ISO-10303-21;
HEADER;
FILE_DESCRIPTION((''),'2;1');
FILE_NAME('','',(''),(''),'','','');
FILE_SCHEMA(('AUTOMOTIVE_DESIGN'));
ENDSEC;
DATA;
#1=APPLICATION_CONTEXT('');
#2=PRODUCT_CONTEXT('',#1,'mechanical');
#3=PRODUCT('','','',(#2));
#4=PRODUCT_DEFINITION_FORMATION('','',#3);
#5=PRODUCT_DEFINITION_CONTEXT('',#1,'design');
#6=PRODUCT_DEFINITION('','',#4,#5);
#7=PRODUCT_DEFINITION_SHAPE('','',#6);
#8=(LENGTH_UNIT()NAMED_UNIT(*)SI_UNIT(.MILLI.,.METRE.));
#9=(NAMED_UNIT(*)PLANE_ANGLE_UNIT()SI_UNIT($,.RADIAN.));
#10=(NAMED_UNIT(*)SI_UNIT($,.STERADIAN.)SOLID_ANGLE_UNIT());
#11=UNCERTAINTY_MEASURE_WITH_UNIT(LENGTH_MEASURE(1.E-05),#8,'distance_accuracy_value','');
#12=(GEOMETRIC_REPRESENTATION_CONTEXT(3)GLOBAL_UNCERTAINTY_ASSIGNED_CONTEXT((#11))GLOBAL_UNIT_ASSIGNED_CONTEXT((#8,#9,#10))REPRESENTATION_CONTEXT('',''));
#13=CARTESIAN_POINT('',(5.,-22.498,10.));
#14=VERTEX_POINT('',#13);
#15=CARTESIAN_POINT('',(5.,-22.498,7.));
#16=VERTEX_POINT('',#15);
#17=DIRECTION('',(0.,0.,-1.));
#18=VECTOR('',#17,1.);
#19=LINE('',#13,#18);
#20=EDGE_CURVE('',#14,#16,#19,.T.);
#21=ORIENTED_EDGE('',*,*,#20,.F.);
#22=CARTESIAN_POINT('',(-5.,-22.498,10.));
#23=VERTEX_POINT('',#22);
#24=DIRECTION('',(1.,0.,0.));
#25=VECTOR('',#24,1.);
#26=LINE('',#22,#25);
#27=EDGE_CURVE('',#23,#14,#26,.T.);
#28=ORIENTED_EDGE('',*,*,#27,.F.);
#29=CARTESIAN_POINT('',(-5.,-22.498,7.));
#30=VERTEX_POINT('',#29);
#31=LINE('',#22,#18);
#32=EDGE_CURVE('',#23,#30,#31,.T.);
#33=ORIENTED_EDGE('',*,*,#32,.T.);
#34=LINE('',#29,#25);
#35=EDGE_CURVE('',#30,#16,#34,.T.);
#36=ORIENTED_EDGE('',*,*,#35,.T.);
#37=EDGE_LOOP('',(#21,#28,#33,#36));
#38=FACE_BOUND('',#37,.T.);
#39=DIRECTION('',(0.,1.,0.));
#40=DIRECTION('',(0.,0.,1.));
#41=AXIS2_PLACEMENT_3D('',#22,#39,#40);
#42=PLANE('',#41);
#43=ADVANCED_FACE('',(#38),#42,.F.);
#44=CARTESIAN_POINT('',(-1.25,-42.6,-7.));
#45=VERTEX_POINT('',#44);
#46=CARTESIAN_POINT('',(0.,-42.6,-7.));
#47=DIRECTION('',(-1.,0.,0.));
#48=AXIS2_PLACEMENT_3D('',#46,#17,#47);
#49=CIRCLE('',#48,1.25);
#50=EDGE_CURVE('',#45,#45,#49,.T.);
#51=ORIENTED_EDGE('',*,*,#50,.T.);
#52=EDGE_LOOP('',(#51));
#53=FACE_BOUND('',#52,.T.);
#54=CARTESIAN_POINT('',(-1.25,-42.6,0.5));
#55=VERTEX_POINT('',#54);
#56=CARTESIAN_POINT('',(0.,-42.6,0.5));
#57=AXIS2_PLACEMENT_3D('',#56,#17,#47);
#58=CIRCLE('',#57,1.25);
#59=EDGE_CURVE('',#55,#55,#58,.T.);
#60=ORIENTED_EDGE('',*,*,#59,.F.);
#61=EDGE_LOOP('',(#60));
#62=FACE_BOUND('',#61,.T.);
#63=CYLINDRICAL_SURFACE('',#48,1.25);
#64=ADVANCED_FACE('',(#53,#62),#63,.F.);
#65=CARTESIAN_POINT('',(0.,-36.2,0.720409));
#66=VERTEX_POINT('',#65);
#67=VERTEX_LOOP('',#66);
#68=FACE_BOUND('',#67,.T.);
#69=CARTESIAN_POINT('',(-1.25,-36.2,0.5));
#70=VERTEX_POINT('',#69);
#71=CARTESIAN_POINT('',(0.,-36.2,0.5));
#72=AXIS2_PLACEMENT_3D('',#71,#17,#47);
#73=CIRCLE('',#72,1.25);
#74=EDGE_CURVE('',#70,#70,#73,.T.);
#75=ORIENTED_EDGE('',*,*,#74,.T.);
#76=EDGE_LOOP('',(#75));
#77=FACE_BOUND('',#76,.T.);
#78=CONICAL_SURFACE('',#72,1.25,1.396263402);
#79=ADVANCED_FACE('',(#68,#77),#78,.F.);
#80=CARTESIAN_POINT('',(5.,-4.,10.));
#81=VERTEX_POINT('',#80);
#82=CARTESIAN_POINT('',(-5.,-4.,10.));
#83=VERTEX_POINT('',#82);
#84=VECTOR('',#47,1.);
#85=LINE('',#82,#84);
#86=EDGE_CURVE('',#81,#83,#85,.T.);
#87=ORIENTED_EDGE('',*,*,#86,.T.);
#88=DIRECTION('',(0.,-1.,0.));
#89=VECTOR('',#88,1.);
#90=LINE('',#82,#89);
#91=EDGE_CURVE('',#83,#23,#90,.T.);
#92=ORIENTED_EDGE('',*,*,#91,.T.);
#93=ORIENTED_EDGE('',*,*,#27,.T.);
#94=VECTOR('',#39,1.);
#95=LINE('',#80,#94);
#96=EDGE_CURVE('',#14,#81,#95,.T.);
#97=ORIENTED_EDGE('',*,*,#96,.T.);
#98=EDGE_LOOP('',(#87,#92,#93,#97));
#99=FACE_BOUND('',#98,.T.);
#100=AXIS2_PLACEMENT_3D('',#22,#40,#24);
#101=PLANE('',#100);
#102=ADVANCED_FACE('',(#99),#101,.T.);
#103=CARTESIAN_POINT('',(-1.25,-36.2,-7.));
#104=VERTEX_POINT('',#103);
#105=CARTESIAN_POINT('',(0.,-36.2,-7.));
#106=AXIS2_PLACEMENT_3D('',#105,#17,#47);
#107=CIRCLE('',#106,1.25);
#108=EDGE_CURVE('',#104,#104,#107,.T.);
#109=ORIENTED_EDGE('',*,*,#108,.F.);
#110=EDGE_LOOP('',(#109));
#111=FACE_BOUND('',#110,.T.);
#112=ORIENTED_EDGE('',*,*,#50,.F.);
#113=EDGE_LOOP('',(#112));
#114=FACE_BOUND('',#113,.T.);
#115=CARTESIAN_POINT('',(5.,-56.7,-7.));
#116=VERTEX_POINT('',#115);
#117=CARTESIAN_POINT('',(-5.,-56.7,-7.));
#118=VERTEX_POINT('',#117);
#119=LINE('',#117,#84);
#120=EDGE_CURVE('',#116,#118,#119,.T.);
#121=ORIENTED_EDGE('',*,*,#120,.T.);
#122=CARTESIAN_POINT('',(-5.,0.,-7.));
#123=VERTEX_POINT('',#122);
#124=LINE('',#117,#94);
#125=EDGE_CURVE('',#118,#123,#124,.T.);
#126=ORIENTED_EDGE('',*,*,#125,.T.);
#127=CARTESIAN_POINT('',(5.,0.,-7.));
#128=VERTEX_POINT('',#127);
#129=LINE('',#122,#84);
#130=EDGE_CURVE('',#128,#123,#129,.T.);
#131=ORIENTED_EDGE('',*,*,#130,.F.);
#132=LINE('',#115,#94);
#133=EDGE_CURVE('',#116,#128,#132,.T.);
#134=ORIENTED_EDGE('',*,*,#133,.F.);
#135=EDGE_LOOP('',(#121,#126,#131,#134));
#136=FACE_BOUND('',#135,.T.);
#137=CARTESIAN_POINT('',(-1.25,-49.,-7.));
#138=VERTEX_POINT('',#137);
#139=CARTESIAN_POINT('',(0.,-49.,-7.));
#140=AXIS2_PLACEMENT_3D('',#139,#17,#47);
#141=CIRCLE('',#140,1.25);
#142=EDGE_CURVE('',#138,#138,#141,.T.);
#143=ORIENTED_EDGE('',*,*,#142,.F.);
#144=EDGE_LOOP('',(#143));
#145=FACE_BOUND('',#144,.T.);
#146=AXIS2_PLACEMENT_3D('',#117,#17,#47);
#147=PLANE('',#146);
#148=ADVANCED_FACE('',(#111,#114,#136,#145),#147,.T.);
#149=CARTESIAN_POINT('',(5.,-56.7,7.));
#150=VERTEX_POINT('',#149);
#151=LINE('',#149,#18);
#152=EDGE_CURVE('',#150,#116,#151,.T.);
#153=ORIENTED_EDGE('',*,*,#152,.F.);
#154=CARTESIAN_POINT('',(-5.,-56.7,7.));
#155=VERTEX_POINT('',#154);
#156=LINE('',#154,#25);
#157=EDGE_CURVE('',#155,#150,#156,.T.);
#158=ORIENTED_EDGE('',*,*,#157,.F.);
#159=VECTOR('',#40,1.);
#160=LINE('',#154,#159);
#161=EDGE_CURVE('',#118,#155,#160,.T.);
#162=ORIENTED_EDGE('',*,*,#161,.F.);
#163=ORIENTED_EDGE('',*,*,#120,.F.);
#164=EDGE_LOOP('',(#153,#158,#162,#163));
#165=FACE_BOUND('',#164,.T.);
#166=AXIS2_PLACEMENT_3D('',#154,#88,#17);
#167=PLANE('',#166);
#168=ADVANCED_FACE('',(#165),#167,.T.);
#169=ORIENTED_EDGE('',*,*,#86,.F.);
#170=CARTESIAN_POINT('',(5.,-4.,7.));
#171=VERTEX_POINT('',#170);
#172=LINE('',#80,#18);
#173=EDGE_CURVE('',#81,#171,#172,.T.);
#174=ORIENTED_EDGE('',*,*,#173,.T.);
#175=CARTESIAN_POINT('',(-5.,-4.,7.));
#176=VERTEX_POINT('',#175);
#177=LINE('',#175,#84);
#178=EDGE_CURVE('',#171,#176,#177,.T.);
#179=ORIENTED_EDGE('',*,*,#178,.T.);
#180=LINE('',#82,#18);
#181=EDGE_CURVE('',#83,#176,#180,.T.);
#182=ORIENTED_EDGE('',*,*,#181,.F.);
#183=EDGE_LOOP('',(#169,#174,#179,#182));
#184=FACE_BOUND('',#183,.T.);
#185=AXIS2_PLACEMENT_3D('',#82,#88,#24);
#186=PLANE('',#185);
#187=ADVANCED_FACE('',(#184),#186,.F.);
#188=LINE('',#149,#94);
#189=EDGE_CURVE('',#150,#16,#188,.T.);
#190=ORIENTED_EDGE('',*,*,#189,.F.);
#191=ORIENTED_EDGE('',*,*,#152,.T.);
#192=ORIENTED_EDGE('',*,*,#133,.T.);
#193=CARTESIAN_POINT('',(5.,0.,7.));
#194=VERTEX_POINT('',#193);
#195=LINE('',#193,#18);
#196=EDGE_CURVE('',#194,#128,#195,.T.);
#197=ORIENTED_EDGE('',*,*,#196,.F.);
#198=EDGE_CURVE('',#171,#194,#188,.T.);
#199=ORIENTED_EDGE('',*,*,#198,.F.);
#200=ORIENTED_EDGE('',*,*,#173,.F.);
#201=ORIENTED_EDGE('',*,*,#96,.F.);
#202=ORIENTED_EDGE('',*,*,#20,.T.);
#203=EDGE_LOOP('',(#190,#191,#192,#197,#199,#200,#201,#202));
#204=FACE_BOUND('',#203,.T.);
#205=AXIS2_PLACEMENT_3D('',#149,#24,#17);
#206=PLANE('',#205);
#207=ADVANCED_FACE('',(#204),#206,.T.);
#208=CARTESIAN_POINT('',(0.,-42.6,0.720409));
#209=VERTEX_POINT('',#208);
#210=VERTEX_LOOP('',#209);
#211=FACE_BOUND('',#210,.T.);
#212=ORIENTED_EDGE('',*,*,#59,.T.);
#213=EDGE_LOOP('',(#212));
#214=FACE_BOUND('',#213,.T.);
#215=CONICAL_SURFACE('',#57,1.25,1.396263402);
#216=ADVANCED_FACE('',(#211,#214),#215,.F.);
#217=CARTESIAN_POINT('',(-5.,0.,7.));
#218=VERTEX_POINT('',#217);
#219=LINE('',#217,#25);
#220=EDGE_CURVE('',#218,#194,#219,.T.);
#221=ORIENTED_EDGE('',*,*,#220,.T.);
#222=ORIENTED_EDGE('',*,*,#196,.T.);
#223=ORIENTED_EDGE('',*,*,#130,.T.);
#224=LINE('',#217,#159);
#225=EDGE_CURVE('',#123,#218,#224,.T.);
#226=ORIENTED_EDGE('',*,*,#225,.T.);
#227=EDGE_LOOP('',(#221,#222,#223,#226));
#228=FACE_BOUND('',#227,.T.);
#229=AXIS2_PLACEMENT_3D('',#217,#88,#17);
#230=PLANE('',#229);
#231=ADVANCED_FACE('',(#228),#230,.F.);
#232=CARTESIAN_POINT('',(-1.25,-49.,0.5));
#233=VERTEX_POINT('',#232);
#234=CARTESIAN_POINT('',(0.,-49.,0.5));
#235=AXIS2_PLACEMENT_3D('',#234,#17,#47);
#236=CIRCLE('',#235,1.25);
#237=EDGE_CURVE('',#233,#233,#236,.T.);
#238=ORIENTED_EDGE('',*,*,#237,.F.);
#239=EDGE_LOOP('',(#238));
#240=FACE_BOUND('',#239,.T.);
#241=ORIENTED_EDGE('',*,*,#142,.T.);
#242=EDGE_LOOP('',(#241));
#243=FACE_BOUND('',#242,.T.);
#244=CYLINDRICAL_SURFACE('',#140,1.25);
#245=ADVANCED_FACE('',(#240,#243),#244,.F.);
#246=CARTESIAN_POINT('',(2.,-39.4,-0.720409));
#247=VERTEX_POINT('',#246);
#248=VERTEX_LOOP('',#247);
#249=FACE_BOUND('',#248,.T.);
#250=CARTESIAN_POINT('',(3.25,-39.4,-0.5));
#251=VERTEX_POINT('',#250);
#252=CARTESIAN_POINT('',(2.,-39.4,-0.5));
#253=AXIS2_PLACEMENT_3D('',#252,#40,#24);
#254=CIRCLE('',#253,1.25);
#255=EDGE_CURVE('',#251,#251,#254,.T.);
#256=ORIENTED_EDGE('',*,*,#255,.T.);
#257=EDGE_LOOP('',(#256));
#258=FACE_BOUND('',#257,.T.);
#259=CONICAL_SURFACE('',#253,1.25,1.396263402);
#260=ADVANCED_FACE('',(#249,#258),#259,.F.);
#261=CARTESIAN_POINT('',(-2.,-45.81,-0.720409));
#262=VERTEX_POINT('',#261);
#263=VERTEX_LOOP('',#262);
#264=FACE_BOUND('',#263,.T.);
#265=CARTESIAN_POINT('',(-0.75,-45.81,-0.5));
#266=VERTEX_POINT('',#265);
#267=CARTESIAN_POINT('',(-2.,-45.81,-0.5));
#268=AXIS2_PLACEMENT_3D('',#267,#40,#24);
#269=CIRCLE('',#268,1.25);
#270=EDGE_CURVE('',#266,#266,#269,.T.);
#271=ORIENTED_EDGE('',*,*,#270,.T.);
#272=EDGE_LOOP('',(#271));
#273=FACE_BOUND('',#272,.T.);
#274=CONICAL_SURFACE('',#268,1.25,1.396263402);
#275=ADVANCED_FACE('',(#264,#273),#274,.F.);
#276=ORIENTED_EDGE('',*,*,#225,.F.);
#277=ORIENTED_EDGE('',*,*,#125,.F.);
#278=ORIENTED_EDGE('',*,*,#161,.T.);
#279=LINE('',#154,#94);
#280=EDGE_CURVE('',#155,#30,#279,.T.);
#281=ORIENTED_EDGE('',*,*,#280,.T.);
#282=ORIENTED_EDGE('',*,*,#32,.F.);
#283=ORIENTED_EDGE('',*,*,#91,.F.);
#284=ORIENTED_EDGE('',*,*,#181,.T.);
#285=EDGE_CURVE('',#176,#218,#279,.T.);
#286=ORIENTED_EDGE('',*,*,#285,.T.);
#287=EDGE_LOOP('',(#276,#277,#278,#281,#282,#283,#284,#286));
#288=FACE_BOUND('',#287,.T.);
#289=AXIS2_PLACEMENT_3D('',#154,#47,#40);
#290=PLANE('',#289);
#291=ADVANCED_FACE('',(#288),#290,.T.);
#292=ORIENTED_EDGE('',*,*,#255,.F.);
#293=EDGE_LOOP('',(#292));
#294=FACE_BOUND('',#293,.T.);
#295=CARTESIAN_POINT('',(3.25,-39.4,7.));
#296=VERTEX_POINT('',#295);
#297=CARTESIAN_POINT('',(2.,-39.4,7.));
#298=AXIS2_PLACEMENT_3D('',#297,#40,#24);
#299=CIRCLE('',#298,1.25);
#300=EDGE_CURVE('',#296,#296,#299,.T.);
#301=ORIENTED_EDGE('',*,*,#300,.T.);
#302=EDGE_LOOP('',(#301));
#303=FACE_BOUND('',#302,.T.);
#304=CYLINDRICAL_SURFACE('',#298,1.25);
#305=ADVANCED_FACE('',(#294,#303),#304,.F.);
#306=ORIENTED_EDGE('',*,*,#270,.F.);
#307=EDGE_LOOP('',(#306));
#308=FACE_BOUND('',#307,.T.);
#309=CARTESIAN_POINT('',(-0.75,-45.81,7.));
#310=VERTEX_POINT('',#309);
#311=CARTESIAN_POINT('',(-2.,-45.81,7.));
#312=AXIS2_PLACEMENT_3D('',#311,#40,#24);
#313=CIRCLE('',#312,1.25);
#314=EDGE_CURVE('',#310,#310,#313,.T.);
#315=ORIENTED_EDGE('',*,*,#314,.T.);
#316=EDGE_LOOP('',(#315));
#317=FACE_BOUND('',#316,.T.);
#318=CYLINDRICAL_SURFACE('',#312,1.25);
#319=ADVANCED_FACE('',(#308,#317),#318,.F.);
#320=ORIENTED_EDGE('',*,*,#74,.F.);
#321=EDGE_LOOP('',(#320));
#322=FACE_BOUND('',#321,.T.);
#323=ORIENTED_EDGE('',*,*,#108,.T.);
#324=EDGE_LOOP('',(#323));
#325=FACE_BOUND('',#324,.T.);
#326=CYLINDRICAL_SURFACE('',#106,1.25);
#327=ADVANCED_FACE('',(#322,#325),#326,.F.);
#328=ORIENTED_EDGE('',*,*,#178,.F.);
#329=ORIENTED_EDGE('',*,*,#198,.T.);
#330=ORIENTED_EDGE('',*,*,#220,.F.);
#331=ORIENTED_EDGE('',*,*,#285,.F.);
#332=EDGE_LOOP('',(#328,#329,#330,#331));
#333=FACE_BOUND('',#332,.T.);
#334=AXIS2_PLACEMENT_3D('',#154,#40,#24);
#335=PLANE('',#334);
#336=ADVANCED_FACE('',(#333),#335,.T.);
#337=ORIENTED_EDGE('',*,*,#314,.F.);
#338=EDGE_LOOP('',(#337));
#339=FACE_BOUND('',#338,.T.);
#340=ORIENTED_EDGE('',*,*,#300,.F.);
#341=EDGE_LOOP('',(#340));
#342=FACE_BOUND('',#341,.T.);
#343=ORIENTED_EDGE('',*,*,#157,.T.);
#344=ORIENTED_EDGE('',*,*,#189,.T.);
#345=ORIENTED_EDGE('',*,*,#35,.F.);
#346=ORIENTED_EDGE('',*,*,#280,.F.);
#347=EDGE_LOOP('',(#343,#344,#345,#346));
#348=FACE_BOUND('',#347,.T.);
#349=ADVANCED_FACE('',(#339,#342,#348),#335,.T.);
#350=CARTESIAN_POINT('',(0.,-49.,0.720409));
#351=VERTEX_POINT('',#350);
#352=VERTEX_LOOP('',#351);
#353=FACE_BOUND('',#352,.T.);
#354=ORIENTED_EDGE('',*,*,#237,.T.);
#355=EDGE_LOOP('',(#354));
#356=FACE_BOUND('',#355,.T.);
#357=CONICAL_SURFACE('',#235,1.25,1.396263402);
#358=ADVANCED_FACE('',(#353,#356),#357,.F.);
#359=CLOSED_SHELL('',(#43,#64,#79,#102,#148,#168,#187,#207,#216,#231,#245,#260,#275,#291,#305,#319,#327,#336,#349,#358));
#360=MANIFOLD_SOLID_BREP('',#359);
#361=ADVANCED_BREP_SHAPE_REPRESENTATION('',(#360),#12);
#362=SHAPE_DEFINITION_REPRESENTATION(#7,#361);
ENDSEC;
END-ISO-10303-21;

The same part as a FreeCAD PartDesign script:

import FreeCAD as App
import Part
import Sketcher
Q = App.Units.Quantity


def add_polygon(sketch, points):
    """Adds a closed chain of lines whose ends are joined by coincident constraints."""
    first, n = sketch.GeometryCount, len(points)
    for a, b in zip(points, points[1:] + points[:1]):
        sketch.addGeometry(Part.LineSegment(App.Vector(*a, 0), App.Vector(*b, 0)), False)
    for i in range(n):
        sketch.addConstraint(Sketcher.Constraint("Coincident", first + i, 2, first + (i + 1) % n, 1))

doc = App.newDocument("Part")
body = doc.addObject("PartDesign::Body", "Body")

sketch1 = body.newObject("Sketcher::SketchObject", "Sketch")
sketch1.AttachmentSupport = (doc.getObject("XZ_Plane"), [""])
sketch1.MapMode = "FlatFace"
add_polygon(sketch1, [(-5, -7), (-5, 7), (5, 7), (5, -7)])
sketch1.addConstraint(Sketcher.Constraint("Vertical", 0))
sketch1.addConstraint(Sketcher.Constraint("Horizontal", 1))
sketch1.addConstraint(Sketcher.Constraint("Vertical", 2))
sketch1.addConstraint(Sketcher.Constraint("Horizontal", 3))
sketch1.addConstraint(Sketcher.Constraint("Symmetric", 0, 2, 2, 2, -1, 1))
sketch1.addConstraint(Sketcher.Constraint("DistanceX", 1, 1, 1, 2, Q("10 mm")))
sketch1.addConstraint(Sketcher.Constraint("DistanceY", 0, 1, 0, 2, Q("14 mm")))
pad1 = body.newObject("PartDesign::Pad", "Pad")
pad1.Profile = sketch1
pad1.Length = 56.7

sketch2 = body.newObject("Sketcher::SketchObject", "Sketch001")
sketch2.AttachmentSupport = (doc.getObject("XY_Plane"), [""])
sketch2.MapMode = "FlatFace"
sketch2.AttachmentOffset = App.Placement(App.Vector(0, 0, 7), App.Rotation())
add_polygon(sketch2, [(-5, -4), (-5, -22), (5, -22), (5, -4)])
sketch2.addConstraint(Sketcher.Constraint("Vertical", 0))
sketch2.addConstraint(Sketcher.Constraint("Horizontal", 1))
sketch2.addConstraint(Sketcher.Constraint("Vertical", 2))
sketch2.addConstraint(Sketcher.Constraint("Horizontal", 3))
sketch2.addConstraint(Sketcher.Constraint("DistanceX", 1, 1, 1, 2, Q("10 mm")))
sketch2.addConstraint(Sketcher.Constraint("DistanceX", 0, 2, -1, 1, Q("5 mm")))
sketch2.addConstraint(Sketcher.Constraint("DistanceY", 2, 2, -1, 1, Q("4 mm")))
sketch2.addConstraint(Sketcher.Constraint("DistanceY", 0, 2, 0, 1, Q("18.498 mm")))
pad2 = body.newObject("PartDesign::Pad", "Pad001")
pad2.Profile = sketch2
pad2.Length = 3

sketch3 = body.newObject("Sketcher::SketchObject", "Sketch002")
sketch3.AttachmentSupport = (doc.getObject("XY_Plane"), [""])
sketch3.MapMode = "FlatFace"
sketch3.AttachmentOffset = App.Placement(App.Vector(0, 0, -7), App.Rotation())
sketch3.addGeometry(Part.Circle(App.Vector(0, -36.2, 0), App.Vector(0, 0, 1), 1.2), False)
sketch3.addGeometry(Part.Circle(App.Vector(0, -42.6, 0), App.Vector(0, 0, 1), 1.2), False)
sketch3.addGeometry(Part.Circle(App.Vector(0, -49, 0), App.Vector(0, 0, 1), 1.2), False)
sketch3.addConstraint(Sketcher.Constraint("Equal", 0, 1))
sketch3.addConstraint(Sketcher.Constraint("Equal", 1, 2))
sketch3.addConstraint(Sketcher.Constraint("PointOnObject", 0, 3, -2))
sketch3.addConstraint(Sketcher.Constraint("PointOnObject", 1, 3, -2))
sketch3.addConstraint(Sketcher.Constraint("PointOnObject", 2, 3, -2))
sketch3.addConstraint(Sketcher.Constraint("Diameter", 0, Q("2.5 mm")))
sketch3.addConstraint(Sketcher.Constraint("DistanceY", 2, 3, -1, 1, Q("49 mm")))
sketch3.addConstraint(Sketcher.Constraint("DistanceY", 0, 3, -1, 1, Q("36.2 mm")))
sketch3.addConstraint(Sketcher.Constraint("DistanceY", 1, 3, -1, 1, Q("42.6 mm")))
doc.recompute()
hole = body.newObject("PartDesign::Hole", "Hole")
hole.Profile = sketch3
hole.ThreadType = "None"
hole.Diameter = 2.5
hole.DepthType = "Dimension"
hole.Depth = 7.5
hole.DrillPoint = "Angled"
hole.DrillPointAngle = 160
hole.Reversed = True

sketch4 = body.newObject("Sketcher::SketchObject", "Sketch003")
sketch4.AttachmentSupport = (doc.getObject("XY_Plane"), [""])
sketch4.MapMode = "FlatFace"
sketch4.AttachmentOffset = App.Placement(App.Vector(0, 0, 7), App.Rotation())
sketch4.addGeometry(Part.Circle(App.Vector(2, -39.4, 0), App.Vector(0, 0, 1), 1.2), False)
sketch4.addGeometry(Part.Circle(App.Vector(-2, -45.8, 0), App.Vector(0, 0, 1), 1.2), False)
sketch4.addConstraint(Sketcher.Constraint("Equal", 0, 1))
sketch4.addConstraint(Sketcher.Constraint("Diameter", 0, Q("2.5 mm")))
sketch4.addConstraint(Sketcher.Constraint("DistanceX", -1, 1, 0, 3, Q("2 mm")))
sketch4.addConstraint(Sketcher.Constraint("DistanceX", 1, 3, -1, 1, Q("2 mm")))
sketch4.addConstraint(Sketcher.Constraint("DistanceY", 0, 3, -1, 1, Q("39.4 mm")))
sketch4.addConstraint(Sketcher.Constraint("DistanceY", 1, 3, -1, 1, Q("45.81 mm")))
doc.recompute()
hole2 = body.newObject("PartDesign::Hole", "Hole001")
hole2.Profile = sketch4
hole2.ThreadType = "None"
hole2.Diameter = 2.5
hole2.DepthType = "Dimension"
hole2.Depth = 7.5
hole2.DrillPoint = "Angled"
hole2.DrillPointAngle = 160

doc.recompute()
